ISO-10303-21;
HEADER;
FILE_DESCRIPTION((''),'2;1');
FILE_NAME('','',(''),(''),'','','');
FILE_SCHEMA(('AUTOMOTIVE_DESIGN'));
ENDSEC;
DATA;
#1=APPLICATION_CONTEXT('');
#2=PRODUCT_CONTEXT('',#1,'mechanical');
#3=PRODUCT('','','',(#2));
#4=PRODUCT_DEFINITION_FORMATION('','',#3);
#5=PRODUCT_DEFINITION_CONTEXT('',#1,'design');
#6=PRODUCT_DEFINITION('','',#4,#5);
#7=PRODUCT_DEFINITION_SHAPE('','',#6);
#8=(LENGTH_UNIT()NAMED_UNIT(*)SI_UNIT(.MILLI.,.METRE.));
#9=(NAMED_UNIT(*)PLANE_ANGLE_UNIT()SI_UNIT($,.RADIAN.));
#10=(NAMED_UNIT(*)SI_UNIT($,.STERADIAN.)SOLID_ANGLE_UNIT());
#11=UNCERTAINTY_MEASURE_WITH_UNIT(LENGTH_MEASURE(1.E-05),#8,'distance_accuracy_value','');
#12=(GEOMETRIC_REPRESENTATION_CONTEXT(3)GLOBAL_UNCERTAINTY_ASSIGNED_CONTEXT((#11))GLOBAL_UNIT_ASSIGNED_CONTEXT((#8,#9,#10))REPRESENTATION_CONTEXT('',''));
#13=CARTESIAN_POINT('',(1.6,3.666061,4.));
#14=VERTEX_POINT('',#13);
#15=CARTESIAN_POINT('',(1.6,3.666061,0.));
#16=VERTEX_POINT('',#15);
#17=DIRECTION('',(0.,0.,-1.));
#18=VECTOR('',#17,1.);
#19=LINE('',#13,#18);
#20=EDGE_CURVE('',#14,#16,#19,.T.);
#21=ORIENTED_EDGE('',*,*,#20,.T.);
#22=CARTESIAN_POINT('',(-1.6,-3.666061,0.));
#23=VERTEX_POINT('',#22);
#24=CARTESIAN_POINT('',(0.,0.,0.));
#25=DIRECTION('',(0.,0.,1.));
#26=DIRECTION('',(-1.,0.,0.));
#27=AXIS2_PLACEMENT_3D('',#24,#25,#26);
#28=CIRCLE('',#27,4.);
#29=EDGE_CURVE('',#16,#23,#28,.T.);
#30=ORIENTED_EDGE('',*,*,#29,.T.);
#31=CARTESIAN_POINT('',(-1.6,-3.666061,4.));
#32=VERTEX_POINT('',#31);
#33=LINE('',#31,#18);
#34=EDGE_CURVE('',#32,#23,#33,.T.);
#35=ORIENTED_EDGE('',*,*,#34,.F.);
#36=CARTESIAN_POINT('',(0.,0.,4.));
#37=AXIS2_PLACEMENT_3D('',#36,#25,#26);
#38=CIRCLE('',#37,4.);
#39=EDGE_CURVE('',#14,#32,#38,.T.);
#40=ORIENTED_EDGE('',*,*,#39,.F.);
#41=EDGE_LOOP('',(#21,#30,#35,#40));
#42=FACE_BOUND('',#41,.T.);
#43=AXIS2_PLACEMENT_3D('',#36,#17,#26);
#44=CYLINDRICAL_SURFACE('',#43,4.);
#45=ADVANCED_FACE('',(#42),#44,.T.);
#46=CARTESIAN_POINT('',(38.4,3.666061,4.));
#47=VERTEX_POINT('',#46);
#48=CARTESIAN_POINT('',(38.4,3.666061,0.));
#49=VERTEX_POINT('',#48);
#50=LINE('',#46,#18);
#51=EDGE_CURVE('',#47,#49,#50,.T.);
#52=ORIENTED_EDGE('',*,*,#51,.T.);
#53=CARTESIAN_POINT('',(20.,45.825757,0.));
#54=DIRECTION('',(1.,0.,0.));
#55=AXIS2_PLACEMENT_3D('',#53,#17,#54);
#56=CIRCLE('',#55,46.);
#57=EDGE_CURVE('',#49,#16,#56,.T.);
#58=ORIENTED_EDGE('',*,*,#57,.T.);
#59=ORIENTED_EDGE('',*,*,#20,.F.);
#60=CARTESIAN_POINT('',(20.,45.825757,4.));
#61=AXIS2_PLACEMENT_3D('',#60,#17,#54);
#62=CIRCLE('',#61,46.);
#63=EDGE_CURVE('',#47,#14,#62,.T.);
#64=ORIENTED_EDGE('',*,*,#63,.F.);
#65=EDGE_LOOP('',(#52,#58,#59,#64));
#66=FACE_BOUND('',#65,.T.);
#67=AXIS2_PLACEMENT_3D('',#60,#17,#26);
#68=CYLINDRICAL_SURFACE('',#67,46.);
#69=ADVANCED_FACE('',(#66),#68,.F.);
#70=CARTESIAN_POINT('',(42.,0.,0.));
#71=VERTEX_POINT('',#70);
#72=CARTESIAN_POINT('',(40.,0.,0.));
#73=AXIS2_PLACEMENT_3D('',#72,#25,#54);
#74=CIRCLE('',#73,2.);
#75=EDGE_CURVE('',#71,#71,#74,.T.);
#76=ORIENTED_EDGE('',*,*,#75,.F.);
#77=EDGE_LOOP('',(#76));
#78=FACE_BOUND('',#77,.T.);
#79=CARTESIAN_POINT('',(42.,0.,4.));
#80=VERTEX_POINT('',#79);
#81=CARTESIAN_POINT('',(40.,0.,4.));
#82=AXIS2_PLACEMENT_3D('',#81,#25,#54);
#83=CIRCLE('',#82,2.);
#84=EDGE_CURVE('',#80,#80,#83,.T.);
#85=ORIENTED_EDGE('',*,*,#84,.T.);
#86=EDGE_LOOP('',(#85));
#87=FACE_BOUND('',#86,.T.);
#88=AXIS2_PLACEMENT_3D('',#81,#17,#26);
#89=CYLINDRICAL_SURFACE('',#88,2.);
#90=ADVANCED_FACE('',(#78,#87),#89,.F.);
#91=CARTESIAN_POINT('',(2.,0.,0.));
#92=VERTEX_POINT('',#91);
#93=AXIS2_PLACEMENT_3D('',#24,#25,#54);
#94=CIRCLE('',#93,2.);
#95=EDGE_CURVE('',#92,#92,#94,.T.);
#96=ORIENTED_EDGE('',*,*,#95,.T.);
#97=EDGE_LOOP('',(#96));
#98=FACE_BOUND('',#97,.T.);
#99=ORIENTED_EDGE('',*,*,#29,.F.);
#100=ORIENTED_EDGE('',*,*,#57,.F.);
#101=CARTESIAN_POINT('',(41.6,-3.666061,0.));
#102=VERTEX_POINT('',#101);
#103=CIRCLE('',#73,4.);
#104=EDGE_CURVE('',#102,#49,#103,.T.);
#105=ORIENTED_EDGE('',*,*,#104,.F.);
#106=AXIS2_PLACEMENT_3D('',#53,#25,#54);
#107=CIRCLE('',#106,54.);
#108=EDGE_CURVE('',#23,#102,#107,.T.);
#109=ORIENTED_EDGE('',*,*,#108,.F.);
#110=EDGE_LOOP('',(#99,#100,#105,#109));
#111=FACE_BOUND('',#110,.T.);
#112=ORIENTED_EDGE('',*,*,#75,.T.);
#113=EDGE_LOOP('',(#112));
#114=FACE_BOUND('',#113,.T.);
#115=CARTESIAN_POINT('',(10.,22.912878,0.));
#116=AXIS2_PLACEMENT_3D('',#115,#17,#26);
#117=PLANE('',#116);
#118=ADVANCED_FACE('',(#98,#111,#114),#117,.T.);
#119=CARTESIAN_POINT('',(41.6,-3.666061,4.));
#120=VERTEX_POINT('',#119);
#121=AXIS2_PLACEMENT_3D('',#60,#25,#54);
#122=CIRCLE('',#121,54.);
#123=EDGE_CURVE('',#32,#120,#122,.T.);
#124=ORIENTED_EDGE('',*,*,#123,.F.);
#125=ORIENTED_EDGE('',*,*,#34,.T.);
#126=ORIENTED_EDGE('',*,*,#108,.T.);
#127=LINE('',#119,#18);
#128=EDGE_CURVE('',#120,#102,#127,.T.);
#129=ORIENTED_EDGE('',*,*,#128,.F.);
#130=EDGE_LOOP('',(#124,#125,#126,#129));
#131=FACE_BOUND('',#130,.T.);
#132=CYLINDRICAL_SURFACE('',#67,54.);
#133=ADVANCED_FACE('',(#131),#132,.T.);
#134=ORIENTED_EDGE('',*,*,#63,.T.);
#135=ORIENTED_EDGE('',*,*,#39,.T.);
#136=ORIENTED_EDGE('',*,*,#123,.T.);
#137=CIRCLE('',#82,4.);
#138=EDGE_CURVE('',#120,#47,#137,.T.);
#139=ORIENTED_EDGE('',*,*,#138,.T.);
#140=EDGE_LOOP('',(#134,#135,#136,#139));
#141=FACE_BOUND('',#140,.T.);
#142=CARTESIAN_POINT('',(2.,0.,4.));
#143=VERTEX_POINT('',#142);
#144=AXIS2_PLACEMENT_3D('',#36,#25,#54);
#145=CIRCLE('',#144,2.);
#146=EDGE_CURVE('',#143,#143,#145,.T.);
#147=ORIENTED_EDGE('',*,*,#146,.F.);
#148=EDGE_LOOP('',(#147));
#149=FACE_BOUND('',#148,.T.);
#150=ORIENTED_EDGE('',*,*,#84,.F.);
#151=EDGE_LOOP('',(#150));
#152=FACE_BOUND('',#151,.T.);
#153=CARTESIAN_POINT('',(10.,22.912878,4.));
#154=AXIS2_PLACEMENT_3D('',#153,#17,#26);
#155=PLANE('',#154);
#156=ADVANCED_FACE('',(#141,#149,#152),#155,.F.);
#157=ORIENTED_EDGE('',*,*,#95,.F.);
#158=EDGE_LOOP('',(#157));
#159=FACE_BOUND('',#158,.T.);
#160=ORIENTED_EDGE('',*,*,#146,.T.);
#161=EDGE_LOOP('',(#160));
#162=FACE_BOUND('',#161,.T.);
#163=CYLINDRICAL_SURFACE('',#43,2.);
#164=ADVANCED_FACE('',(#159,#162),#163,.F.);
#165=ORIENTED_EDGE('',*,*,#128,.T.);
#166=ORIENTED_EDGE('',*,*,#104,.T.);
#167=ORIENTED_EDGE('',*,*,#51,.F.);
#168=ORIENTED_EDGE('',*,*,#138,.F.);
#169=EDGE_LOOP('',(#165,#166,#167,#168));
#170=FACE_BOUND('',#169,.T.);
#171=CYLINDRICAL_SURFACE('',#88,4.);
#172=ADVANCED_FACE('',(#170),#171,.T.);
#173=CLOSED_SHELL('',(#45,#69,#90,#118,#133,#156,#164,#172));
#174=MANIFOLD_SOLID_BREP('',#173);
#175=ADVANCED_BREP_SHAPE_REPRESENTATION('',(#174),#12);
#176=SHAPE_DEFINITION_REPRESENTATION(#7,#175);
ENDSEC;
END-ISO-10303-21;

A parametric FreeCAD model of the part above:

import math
import FreeCAD as App
import Part
import Sketcher

doc = App.newDocument("Part")
body = doc.addObject("PartDesign::Body", "Body")

sketch1 = body.newObject("Sketcher::SketchObject", "Sketch")
sketch1.AttachmentSupport = (doc.getObject("XY_Plane"), [""])
sketch1.MapMode = "FlatFace"
sketch1.addGeometry([
    Part.ArcOfCircle(Part.Circle(App.Vector(20, 45.8, 0), App.Vector(0, 0, 1), 54), math.radians(-114), math.radians(-66)),
    Part.ArcOfCircle(Part.Circle(App.Vector(40, 0, 0), App.Vector(0, 0, 1), 4), math.radians(-66), math.radians(114)),
    Part.ArcOfCircle(Part.Circle(App.Vector(20, 45.8, 0), App.Vector(0, 0, 1), 46), math.radians(-114), math.radians(-66)),
    Part.ArcOfCircle(Part.Circle(App.Vector(0, 0, 0), App.Vector(0, 0, 1), 4), math.radians(66), math.radians(246)),
    Part.Circle(App.Vector(0, 0, 0), App.Vector(0, 0, 1), 2),
    Part.Circle(App.Vector(40, 0, 0), App.Vector(0, 0, 1), 2),
], False)
sketch1.addConstraint([
    Sketcher.Constraint("Tangent", 0, 2, 1, 1),
    Sketcher.Constraint("Tangent", 1, 2, 2, 2),
    Sketcher.Constraint("Tangent", 2, 1, 3, 1),
    Sketcher.Constraint("Tangent", 3, 2, 0, 1),
    Sketcher.Constraint("Coincident", 3, 3, -1, 1),
    Sketcher.Constraint("Coincident", 4, 3, -1, 1),
    Sketcher.Constraint("Coincident", 2, 3, 0, 3),
    Sketcher.Constraint("Coincident", 5, 3, 1, 3),
    Sketcher.Constraint("Equal", 4, 5),
    Sketcher.Constraint("PointOnObject", 1, 3, -1),
    Sketcher.Constraint("Diameter", 4, 4.0),
    Sketcher.Constraint("Radius", 0, 54.0),
    Sketcher.Constraint("Radius", 1, 4.0),
    Sketcher.Constraint("DistanceX", -1, 1, 0, 3, 20.0),
])
pad1 = body.newObject("PartDesign::Pad", "Pad")
pad1.Profile = sketch1
pad1.Length = 4

doc.recompute()
